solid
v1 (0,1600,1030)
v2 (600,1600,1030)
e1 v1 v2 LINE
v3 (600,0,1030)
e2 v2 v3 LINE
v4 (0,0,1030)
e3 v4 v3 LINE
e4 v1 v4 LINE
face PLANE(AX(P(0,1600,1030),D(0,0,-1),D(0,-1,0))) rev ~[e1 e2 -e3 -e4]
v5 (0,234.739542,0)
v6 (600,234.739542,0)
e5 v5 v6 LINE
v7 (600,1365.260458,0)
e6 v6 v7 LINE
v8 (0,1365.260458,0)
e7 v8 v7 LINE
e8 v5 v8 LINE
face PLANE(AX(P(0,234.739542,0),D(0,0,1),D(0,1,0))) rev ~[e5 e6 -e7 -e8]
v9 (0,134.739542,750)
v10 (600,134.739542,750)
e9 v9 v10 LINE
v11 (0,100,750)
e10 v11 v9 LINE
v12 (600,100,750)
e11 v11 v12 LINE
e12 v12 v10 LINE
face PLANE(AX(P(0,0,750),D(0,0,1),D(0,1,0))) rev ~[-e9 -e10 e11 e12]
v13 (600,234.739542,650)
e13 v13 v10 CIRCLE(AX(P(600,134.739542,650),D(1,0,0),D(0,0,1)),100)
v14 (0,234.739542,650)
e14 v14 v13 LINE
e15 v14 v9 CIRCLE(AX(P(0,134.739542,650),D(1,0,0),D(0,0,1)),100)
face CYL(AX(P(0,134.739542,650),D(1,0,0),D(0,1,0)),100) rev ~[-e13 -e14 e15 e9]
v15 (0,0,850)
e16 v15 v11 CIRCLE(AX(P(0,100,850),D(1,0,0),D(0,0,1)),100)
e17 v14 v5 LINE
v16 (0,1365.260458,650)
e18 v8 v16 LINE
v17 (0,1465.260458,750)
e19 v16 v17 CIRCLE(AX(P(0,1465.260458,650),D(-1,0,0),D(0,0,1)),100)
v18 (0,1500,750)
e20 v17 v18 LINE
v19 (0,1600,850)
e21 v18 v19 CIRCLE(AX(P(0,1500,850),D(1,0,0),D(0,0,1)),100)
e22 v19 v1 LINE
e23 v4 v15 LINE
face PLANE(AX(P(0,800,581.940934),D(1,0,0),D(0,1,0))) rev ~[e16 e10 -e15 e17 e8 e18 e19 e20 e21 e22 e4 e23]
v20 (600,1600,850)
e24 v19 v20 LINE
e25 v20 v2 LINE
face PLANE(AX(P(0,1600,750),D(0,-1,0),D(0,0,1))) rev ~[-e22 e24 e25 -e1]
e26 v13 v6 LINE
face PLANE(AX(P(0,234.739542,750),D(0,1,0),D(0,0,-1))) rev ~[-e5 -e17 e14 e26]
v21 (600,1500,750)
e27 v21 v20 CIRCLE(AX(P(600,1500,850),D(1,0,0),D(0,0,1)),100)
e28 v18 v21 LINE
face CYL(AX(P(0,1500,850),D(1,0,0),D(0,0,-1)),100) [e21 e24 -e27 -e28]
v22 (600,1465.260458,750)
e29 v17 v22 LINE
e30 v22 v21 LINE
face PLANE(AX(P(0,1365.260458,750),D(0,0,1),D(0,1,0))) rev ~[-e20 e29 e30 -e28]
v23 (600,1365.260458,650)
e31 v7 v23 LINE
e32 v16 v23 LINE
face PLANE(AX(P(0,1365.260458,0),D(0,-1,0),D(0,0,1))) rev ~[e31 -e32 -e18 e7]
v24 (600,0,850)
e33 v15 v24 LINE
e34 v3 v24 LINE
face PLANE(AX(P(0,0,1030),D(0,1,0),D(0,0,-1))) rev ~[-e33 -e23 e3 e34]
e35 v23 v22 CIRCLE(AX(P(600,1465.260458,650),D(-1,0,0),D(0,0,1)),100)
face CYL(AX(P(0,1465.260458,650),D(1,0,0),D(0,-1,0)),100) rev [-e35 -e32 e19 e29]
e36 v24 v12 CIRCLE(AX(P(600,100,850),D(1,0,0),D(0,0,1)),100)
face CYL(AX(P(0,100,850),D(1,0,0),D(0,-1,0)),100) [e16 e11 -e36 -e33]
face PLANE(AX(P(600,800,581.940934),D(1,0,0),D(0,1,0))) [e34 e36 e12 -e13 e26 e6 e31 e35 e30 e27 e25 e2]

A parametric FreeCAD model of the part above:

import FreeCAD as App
import Part
import Sketcher

V = App.Vector
Q = App.Units.Quantity


def edges_at(feature, points):
    """Names of the edges that pass closest to the given points."""
    edges = feature.Shape.Edges
    near = lambda p: min(range(len(edges)), key=lambda i: edges[i].distToShape(Part.Vertex(*p))[0])
    return sorted({f"Edge{near(p) + 1}" for p in points})

doc = App.newDocument("Part")
body = doc.addObject("PartDesign::Body", "Body")

# Sketch on YZ plane
sketch1 = body.newObject("Sketcher::SketchObject", "Sketch")
sketch1.AttachmentSupport = (doc.getObject("YZ_Plane"), [""])
sketch1.MapMode = "FlatFace"
sketch1.addGeometry(Part.LineSegment(V(235, 750, 0), V(235, 0, 0)), False)
sketch1.addGeometry(Part.LineSegment(V(235, 0, 0), V(1365, 0, 0)), False)
sketch1.addGeometry(Part.LineSegment(V(1365, 0, 0), V(1365, 750, 0)), False)
sketch1.addGeometry(Part.LineSegment(V(1365, 750, 0), V(1600, 750, 0)), False)
sketch1.addGeometry(Part.LineSegment(V(1600, 750, 0), V(1600, 1030, 0)), False)
sketch1.addGeometry(Part.LineSegment(V(1600, 1030, 0), V(0, 1030, 0)), False)
sketch1.addGeometry(Part.LineSegment(V(0, 1030, 0), V(0, 750, 0)), False)
sketch1.addGeometry(Part.LineSegment(V(0, 750, 0), V(235, 750, 0)), False)
sketch1.addConstraint(Sketcher.Constraint("Coincident", 0, 2, 1, 1))
sketch1.addConstraint(Sketcher.Constraint("Coincident", 1, 2, 2, 1))
sketch1.addConstraint(Sketcher.Constraint("Coincident", 2, 2, 3, 1))
sketch1.addConstraint(Sketcher.Constraint("Coincident", 3, 2, 4, 1))
sketch1.addConstraint(Sketcher.Constraint("Coincident", 4, 2, 5, 1))
sketch1.addConstraint(Sketcher.Constraint("Coincident", 5, 2, 6, 1))
sketch1.addConstraint(Sketcher.Constraint("Coincident", 6, 2, 7, 1))
sketch1.addConstraint(Sketcher.Constraint("Coincident", 7, 2, 0, 1))
sketch1.addConstraint(Sketcher.Constraint("Vertical", 0))
sketch1.addConstraint(Sketcher.Constraint("Horizontal", 1))
sketch1.addConstraint(Sketcher.Constraint("Vertical", 2))
sketch1.addConstraint(Sketcher.Constraint("Horizontal", 3))
sketch1.addConstraint(Sketcher.Constraint("Vertical", 4))
sketch1.addConstraint(Sketcher.Constraint("Horizontal", 5))
sketch1.addConstraint(Sketcher.Constraint("Vertical", 6))
sketch1.addConstraint(Sketcher.Constraint("Horizontal", 7))
sketch1.addConstraint(Sketcher.Constraint("PointOnObject", 0, 2, -1))
sketch1.addConstraint(Sketcher.Constraint("PointOnObject", 5, 2, -2))
sketch1.addConstraint(Sketcher.Constraint("Horizontal", 3, 2, 6, 2))
sketch1.addConstraint(Sketcher.Constraint("Equal", 3, 7))
sketch1.addConstraint(Sketcher.Constraint("DistanceX", 5, 2, 5, 1, Q("1600 mm")))
sketch1.addConstraint(Sketcher.Constraint("DistanceY", 0, 2, 0, 1, Q("750 mm")))
sketch1.addConstraint(Sketcher.Constraint("DistanceY", 4, 1, 4, 2, Q("280 mm")))
sketch1.addConstraint(Sketcher.Constraint("DistanceX", 7, 1, 7, 2, Q("234.739542 mm")))
pad1 = body.newObject("PartDesign::Pad", "Pad")
pad1.Profile = sketch1
pad1.Length = 600
doc.recompute()

fillet = body.newObject("PartDesign::Fillet", "Fillet")
fillet.Base = (pad1, edges_at(pad1, [
    (300, 234.74, 750),
    (300, 0, 750),
    (300, 1365.26, 750),
    (300, 1600, 750),
]))
fillet.Radius = 100

doc.recompute()
